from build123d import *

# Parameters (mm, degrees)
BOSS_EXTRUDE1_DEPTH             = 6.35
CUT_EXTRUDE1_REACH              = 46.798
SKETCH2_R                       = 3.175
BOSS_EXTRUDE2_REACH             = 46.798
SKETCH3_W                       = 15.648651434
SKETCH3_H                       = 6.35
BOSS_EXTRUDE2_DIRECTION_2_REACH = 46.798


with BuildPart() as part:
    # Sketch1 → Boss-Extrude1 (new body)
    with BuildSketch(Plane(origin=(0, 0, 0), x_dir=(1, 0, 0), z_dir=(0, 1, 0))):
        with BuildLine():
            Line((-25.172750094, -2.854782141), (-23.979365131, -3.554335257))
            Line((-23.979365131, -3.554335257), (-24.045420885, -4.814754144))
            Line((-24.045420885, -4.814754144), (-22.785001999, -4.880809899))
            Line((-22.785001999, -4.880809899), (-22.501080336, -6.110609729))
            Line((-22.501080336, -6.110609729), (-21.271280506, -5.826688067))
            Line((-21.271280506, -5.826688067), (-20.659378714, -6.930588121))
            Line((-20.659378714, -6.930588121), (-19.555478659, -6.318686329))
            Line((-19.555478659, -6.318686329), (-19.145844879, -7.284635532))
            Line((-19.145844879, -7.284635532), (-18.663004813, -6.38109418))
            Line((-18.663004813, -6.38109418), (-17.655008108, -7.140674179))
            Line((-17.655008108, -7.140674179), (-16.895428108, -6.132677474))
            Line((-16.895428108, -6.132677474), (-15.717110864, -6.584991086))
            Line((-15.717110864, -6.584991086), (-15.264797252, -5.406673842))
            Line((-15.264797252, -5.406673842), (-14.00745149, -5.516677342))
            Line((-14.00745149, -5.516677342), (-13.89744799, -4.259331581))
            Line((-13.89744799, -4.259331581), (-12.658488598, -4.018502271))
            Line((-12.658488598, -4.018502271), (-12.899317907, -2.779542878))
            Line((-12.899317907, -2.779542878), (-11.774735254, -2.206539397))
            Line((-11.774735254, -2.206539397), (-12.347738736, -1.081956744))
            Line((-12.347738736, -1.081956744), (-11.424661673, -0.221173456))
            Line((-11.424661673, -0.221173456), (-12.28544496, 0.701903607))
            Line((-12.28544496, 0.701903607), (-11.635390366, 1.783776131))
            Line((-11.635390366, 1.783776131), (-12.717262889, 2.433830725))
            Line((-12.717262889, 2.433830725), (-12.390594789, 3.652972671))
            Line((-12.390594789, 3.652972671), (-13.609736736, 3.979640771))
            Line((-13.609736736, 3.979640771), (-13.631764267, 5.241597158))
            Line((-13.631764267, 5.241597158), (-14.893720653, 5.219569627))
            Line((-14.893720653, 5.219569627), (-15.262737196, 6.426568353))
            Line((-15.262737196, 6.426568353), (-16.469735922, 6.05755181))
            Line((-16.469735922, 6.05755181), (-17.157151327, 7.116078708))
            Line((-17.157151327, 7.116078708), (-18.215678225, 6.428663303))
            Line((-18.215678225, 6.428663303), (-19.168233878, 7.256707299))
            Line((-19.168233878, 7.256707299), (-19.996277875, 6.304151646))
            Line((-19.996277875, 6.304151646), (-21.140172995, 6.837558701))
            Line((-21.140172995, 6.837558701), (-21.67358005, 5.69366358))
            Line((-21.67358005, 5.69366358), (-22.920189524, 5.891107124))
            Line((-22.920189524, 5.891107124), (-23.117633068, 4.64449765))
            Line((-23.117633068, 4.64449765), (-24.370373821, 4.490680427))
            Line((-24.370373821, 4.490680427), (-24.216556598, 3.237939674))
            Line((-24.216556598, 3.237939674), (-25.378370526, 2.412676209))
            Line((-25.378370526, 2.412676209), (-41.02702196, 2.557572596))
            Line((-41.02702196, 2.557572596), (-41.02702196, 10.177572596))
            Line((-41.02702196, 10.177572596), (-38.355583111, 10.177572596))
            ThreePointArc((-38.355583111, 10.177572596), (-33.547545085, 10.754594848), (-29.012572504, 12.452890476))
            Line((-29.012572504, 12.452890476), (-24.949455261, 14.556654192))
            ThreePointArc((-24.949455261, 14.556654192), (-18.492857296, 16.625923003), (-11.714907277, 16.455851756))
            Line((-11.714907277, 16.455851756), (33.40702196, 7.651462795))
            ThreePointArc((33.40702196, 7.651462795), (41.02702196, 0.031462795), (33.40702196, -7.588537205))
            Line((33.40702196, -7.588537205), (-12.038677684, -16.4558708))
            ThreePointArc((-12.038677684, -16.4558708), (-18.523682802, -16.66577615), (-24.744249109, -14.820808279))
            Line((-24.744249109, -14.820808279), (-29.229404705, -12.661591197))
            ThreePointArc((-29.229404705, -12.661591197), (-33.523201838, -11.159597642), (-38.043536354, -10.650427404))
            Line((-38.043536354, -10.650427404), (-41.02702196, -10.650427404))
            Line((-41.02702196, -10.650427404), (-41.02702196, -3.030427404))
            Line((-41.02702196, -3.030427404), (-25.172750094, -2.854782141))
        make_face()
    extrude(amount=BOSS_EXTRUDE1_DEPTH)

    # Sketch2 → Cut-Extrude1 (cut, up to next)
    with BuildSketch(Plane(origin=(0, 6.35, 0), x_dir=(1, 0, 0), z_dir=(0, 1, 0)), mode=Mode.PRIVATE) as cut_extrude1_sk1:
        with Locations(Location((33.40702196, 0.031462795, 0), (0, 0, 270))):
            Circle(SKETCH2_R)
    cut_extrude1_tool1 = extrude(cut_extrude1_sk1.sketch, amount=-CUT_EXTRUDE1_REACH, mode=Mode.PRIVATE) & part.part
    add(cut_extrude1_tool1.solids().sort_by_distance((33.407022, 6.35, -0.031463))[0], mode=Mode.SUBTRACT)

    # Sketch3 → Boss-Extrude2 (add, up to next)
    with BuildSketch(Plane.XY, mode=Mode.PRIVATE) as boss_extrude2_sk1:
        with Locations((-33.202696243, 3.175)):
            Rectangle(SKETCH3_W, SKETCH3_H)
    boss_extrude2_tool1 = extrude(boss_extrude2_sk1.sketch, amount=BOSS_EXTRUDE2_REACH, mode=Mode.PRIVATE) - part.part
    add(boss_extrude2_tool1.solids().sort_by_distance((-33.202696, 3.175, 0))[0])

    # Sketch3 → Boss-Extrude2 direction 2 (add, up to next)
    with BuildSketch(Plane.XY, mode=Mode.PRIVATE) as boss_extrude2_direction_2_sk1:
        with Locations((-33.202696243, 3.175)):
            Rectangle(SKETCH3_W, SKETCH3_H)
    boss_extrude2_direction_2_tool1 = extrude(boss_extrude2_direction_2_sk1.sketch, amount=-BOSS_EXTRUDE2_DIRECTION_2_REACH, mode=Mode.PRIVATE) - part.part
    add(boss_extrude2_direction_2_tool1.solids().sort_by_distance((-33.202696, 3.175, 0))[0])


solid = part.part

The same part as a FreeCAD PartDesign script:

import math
import FreeCAD as App
import Part
import Sketcher

V = App.Vector
Q = App.Units.Quantity


def add_polygon(sketch, points):
    """Adds a closed chain of lines whose ends are joined by coincident constraints."""
    first, n = sketch.GeometryCount, len(points)
    for a, b in zip(points, points[1:] + points[:1]):
        sketch.addGeometry(Part.LineSegment(App.Vector(*a, 0), App.Vector(*b, 0)), False)
    for i in range(n):
        sketch.addConstraint(Sketcher.Constraint("Coincident", first + i, 2, first + (i + 1) % n, 1))

doc = App.newDocument("Part")
body = doc.addObject("PartDesign::Body", "Body")

# Sketch on XZ plane
sketch1 = body.newObject("Sketcher::SketchObject", "Sketch")
sketch1.AttachmentSupport = (doc.getObject("XZ_Plane"), [""])
sketch1.MapMode = "FlatFace"
sketch1.addGeometry([
    Part.LineSegment(V(-24, 3.6, 0), V(-25.2, 2.9, 0)),  # 0
    Part.LineSegment(V(-25.2, 2.9, 0), V(-41, 3, 0)),  # 1
    Part.LineSegment(V(-41, 3, 0), V(-41, 10.7, 0)),  # 2
    Part.LineSegment(V(-41, 10.7, 0), V(-38, 10.7, 0)),  # 3
    Part.ArcOfCircle(Part.Circle(V(-38, 31, 0), V(0, 0, 1), 20.3), math.radians(-90), math.radians(-64)),  # 4
    Part.LineSegment(V(-29.2, 12.7, 0), V(-24.7, 14.8, 0)),  # 5
    Part.ArcOfCircle(Part.Circle(V(-15.9, -3.5, 0), V(0, 0, 1), 20.3), math.radians(79), math.radians(116)),  # 6
    Part.LineSegment(V(-12, 16.5, 0), V(33.4, 7.6, 0)),  # 7
    Part.ArcOfCircle(Part.Circle(V(33.4, 0, 0), V(0, 0, 1), 7.6), math.radians(-90), math.radians(90)),  # 8
    Part.LineSegment(V(33.4, -7.7, 0), V(-11.7, -16.5, 0)),  # 9
    Part.ArcOfCircle(Part.Circle(V(-15.6, 3.5, 0), V(0, 0, 1), 20.3), math.radians(-117), math.radians(-79)),  # 10
    Part.LineSegment(V(-24.9, -14.6, 0), V(-29, -12.5, 0)),  # 11
    Part.ArcOfCircle(Part.Circle(V(-38.4, -30.5, 0), V(0, 0, 1), 20.3), math.radians(63), math.radians(90)),  # 12
    Part.LineSegment(V(-38.4, -10.2, 0), V(-41, -10.2, 0)),  # 13
    Part.LineSegment(V(-41, -10.2, 0), V(-41, -2.6, 0)),  # 14
    Part.LineSegment(V(-41, -2.6, 0), V(-25.4, -2.4, 0)),  # 15
    Part.LineSegment(V(-25.4, -2.4, 0), V(-24.2, -3.2, 0)),  # 16
    Part.LineSegment(V(-24.2, -3.2, 0), V(-24.4, -4.5, 0)),  # 17
    Part.LineSegment(V(-24.4, -4.5, 0), V(-23.1, -4.6, 0)),  # 18
    Part.LineSegment(V(-23.1, -4.6, 0), V(-22.9, -5.9, 0)),  # 19
    Part.LineSegment(V(-22.9, -5.9, 0), V(-21.7, -5.7, 0)),  # 20
    Part.LineSegment(V(-21.7, -5.7, 0), V(-21.1, -6.8, 0)),  # 21
    Part.LineSegment(V(-21.1, -6.8, 0), V(-20, -6.3, 0)),  # 22
    Part.LineSegment(V(-20, -6.3, 0), V(-19.2, -7.3, 0)),  # 23
    Part.LineSegment(V(-19.2, -7.3, 0), V(-18.2, -6.4, 0)),  # 24
    Part.LineSegment(V(-18.2, -6.4, 0), V(-17.2, -7.1, 0)),  # 25
    Part.LineSegment(V(-17.2, -7.1, 0), V(-16.5, -6.1, 0)),  # 26
    Part.LineSegment(V(-16.5, -6.1, 0), V(-15.3, -6.4, 0)),  # 27
    Part.LineSegment(V(-15.3, -6.4, 0), V(-14.9, -5.2, 0)),  # 28
    Part.LineSegment(V(-14.9, -5.2, 0), V(-13.6, -5.2, 0)),  # 29
    Part.LineSegment(V(-13.6, -5.2, 0), V(-13.6, -4, 0)),  # 30
    Part.LineSegment(V(-13.6, -4, 0), V(-12.4, -3.7, 0)),  # 31
    Part.LineSegment(V(-12.4, -3.7, 0), V(-12.7, -2.4, 0)),  # 32
    Part.LineSegment(V(-12.7, -2.4, 0), V(-11.6, -1.8, 0)),  # 33
    Part.LineSegment(V(-11.6, -1.8, 0), V(-12.3, -0.7, 0)),  # 34
    Part.LineSegment(V(-12.3, -0.7, 0), V(-11.4, 0.2, 0)),  # 35
    Part.LineSegment(V(-11.4, 0.2, 0), V(-12.3, 1.1, 0)),  # 36
    Part.LineSegment(V(-12.3, 1.1, 0), V(-11.8, 2.2, 0)),  # 37
    Part.LineSegment(V(-11.8, 2.2, 0), V(-12.9, 2.8, 0)),  # 38
    Part.LineSegment(V(-12.9, 2.8, 0), V(-12.7, 4, 0)),  # 39
    Part.LineSegment(V(-12.7, 4, 0), V(-13.9, 4.3, 0)),  # 40
    Part.LineSegment(V(-13.9, 4.3, 0), V(-14, 5.5, 0)),  # 41
    Part.LineSegment(V(-14, 5.5, 0), V(-15.3, 5.4, 0)),  # 42
    Part.LineSegment(V(-15.3, 5.4, 0), V(-15.7, 6.6, 0)),  # 43
    Part.LineSegment(V(-15.7, 6.6, 0), V(-16.9, 6.1, 0)),  # 44
    Part.LineSegment(V(-16.9, 6.1, 0), V(-17.7, 7.1, 0)),  # 45
    Part.LineSegment(V(-17.7, 7.1, 0), V(-18.7, 6.4, 0)),  # 46
    Part.LineSegment(V(-18.7, 6.4, 0), V(-19.1, 7.3, 0)),  # 47
    Part.LineSegment(V(-19.1, 7.3, 0), V(-19.6, 6.3, 0)),  # 48
    Part.LineSegment(V(-19.6, 6.3, 0), V(-20.7, 6.9, 0)),  # 49
    Part.LineSegment(V(-20.7, 6.9, 0), V(-21.3, 5.8, 0)),  # 50
    Part.LineSegment(V(-21.3, 5.8, 0), V(-22.5, 6.1, 0)),  # 51
    Part.LineSegment(V(-22.5, 6.1, 0), V(-22.8, 4.9, 0)),  # 52
    Part.LineSegment(V(-22.8, 4.9, 0), V(-24, 4.8, 0)),  # 53
    Part.LineSegment(V(-24, 4.8, 0), V(-24, 3.6, 0)),  # 54
], False)
sketch1.addConstraint([
    Sketcher.Constraint("Coincident", 0, 2, 1, 1),
    Sketcher.Constraint("Coincident", 1, 2, 2, 1),
    Sketcher.Constraint("Coincident", 2, 2, 3, 1),
    Sketcher.Constraint("Tangent", 3, 2, 4, 1),
    Sketcher.Constraint("Tangent", 4, 2, 5, 1),
    Sketcher.Constraint("Tangent", 5, 2, 6, 2),
    Sketcher.Constraint("Tangent", 6, 1, 7, 1),
    Sketcher.Constraint("Coincident", 7, 2, 8, 2),
    Sketcher.Constraint("Coincident", 8, 1, 9, 1),
    Sketcher.Constraint("Tangent", 9, 2, 10, 2),
    Sketcher.Constraint("Tangent", 10, 1, 11, 1),
    Sketcher.Constraint("Tangent", 11, 2, 12, 1),
    Sketcher.Constraint("Tangent", 12, 2, 13, 1),
    Sketcher.Constraint("Coincident", 13, 2, 14, 1),
    Sketcher.Constraint("Coincident", 14, 2, 15, 1),
    Sketcher.Constraint("Coincident", 15, 2, 16, 1),
    Sketcher.Constraint("Coincident", 16, 2, 17, 1),
    Sketcher.Constraint("Coincident", 17, 2, 18, 1),
    Sketcher.Constraint("Coincident", 18, 2, 19, 1),
    Sketcher.Constraint("Coincident", 19, 2, 20, 1),
    Sketcher.Constraint("Coincident", 20, 2, 21, 1),
    Sketcher.Constraint("Coincident", 21, 2, 22, 1),
    Sketcher.Constraint("Coincident", 22, 2, 23, 1),
    Sketcher.Constraint("Coincident", 23, 2, 24, 1),
    Sketcher.Constraint("Coincident", 24, 2, 25, 1),
    Sketcher.Constraint("Coincident", 25, 2, 26, 1),
    Sketcher.Constraint("Coincident", 26, 2, 27, 1),
    Sketcher.Constraint("Coincident", 27, 2, 28, 1),
    Sketcher.Constraint("Coincident", 28, 2, 29, 1),
    Sketcher.Constraint("Coincident", 29, 2, 30, 1),
    Sketcher.Constraint("Coincident", 30, 2, 31, 1),
    Sketcher.Constraint("Coincident", 31, 2, 32, 1),
    Sketcher.Constraint("Coincident", 32, 2, 33, 1),
    Sketcher.Constraint("Coincident", 33, 2, 34, 1),
    Sketcher.Constraint("Coincident", 34, 2, 35, 1),
    Sketcher.Constraint("Coincident", 35, 2, 36, 1),
    Sketcher.Constraint("Coincident", 36, 2, 37, 1),
    Sketcher.Constraint("Coincident", 37, 2, 38, 1),
    Sketcher.Constraint("Coincident", 38, 2, 39, 1),
    Sketcher.Constraint("Coincident", 39, 2, 40, 1),
    Sketcher.Constraint("Coincident", 40, 2, 41, 1),
    Sketcher.Constraint("Coincident", 41, 2, 42, 1),
    Sketcher.Constraint("Coincident", 42, 2, 43, 1),
    Sketcher.Constraint("Coincident", 43, 2, 44, 1),
    Sketcher.Constraint("Coincident", 44, 2, 45, 1),
    Sketcher.Constraint("Coincident", 45, 2, 46, 1),
    Sketcher.Constraint("Coincident", 46, 2, 47, 1),
    Sketcher.Constraint("Coincident", 47, 2, 48, 1),
    Sketcher.Constraint("Coincident", 48, 2, 49, 1),
    Sketcher.Constraint("Coincident", 49, 2, 50, 1),
    Sketcher.Constraint("Coincident", 50, 2, 51, 1),
    Sketcher.Constraint("Coincident", 51, 2, 52, 1),
    Sketcher.Constraint("Coincident", 52, 2, 53, 1),
    Sketcher.Constraint("Coincident", 53, 2, 54, 1),
    Sketcher.Constraint("Coincident", 54, 2, 0, 1),
    Sketcher.Constraint("Vertical", 2),
    Sketcher.Constraint("Horizontal", 3),
    Sketcher.Constraint("Horizontal", 13),
    Sketcher.Constraint("Vertical", 14),
    Sketcher.Constraint("Equal", 4, 6),
    Sketcher.Constraint("Equal", 6, 10),
    Sketcher.Constraint("Equal", 10, 12),
    Sketcher.Constraint("Perpendicular", 17, 18),
    Sketcher.Constraint("Perpendicular", 19, 20),
    Sketcher.Constraint("Perpendicular", 21, 22),
    Sketcher.Constraint("Perpendicular", 23, 24),
    Sketcher.Constraint("Perpendicular", 25, 26),
    Sketcher.Constraint("Perpendicular", 27, 28),
    Sketcher.Constraint("Perpendicular", 29, 30),
    Sketcher.Constraint("Perpendicular", 31, 32),
    Sketcher.Constraint("Perpendicular", 33, 34),
    Sketcher.Constraint("Perpendicular", 35, 36),
    Sketcher.Constraint("Perpendicular", 37, 38),
    Sketcher.Constraint("Perpendicular", 39, 40),
    Sketcher.Constraint("Perpendicular", 41, 42),
    Sketcher.Constraint("Perpendicular", 43, 44),
    Sketcher.Constraint("Perpendicular", 45, 46),
    Sketcher.Constraint("Perpendicular", 49, 50),
    Sketcher.Constraint("Perpendicular", 51, 52),
    Sketcher.Constraint("Perpendicular", 53, 54),
    Sketcher.Constraint("Vertical", 8, 3, 7, 2),
    Sketcher.Constraint("Vertical", 7, 2, 8, 1),
    Sketcher.Constraint("Vertical", 2, 2, 13, 2),
    Sketcher.Constraint("Equal", 2, 14),
    Sketcher.Constraint("Equal", 17, 18),
    Sketcher.Constraint("Equal", 18, 19),
    Sketcher.Constraint("Equal", 19, 20),
    Sketcher.Constraint("Equal", 20, 21),
    Sketcher.Constraint("Equal", 21, 22),
    Sketcher.Constraint("Equal", 22, 23),
    Sketcher.Constraint("Equal", 23, 24),
    Sketcher.Constraint("Equal", 24, 25),
    Sketcher.Constraint("Equal", 25, 26),
    Sketcher.Constraint("Equal", 26, 27),
    Sketcher.Constraint("Equal", 27, 28),
    Sketcher.Constraint("Equal", 28, 29),
    Sketcher.Constraint("Equal", 29, 30),
    Sketcher.Constraint("Equal", 30, 31),
    Sketcher.Constraint("Equal", 31, 32),
    Sketcher.Constraint("Equal", 32, 33),
    Sketcher.Constraint("Equal", 33, 34),
    Sketcher.Constraint("Equal", 34, 35),
    Sketcher.Constraint("Equal", 35, 36),
    Sketcher.Constraint("Equal", 36, 37),
    Sketcher.Constraint("Equal", 37, 38),
    Sketcher.Constraint("Equal", 38, 39),
    Sketcher.Constraint("Equal", 39, 40),
    Sketcher.Constraint("Equal", 40, 41),
    Sketcher.Constraint("Equal", 41, 42),
    Sketcher.Constraint("Equal", 42, 43),
    Sketcher.Constraint("Equal", 43, 44),
    Sketcher.Constraint("Equal", 44, 45),
    Sketcher.Constraint("Equal", 45, 46),
    Sketcher.Constraint("Equal", 46, 49),
    Sketcher.Constraint("Equal", 49, 50),
    Sketcher.Constraint("Equal", 50, 51),
    Sketcher.Constraint("Equal", 51, 52),
    Sketcher.Constraint("Equal", 52, 53),
    Sketcher.Constraint("Equal", 53, 54),
    Sketcher.Constraint("Radius", 4, Q("0.8 in")),
    Sketcher.Constraint("Radius", 8, Q("0.3 in")),
    Sketcher.Constraint("DistanceY", 2, 1, 2, 2, Q("0.3 in")),
    Sketcher.Constraint("Angle", 17, Q("-97 deg")),
    Sketcher.Constraint("Angle", 19, Q("-81 deg")),
    Sketcher.Constraint("Angle", 21, Q("-65 deg")),
    Sketcher.Constraint("Angle", 23, Q("-49 deg")),
    Sketcher.Constraint("Angle", 25, Q("-33 deg")),
    Sketcher.Constraint("Angle", 27, Q("-17 deg")),
    Sketcher.Constraint("Angle", 29, Q("-1 deg")),
    Sketcher.Constraint("Angle", 31, Q("15 deg")),
    Sketcher.Constraint("Angle", 33, Q("31 deg")),
    Sketcher.Constraint("Angle", 35, Q("47 deg")),
    Sketcher.Constraint("Angle", 37, Q("63 deg")),
    Sketcher.Constraint("Angle", 39, Q("79 deg")),
    Sketcher.Constraint("Angle", 41, Q("95 deg")),
    Sketcher.Constraint("Angle", 43, Q("111 deg")),
    Sketcher.Constraint("Angle", 45, Q("127 deg")),
    Sketcher.Constraint("Angle", 49, Q("151 deg")),
    Sketcher.Constraint("Angle", 51, Q("167 deg")),
    Sketcher.Constraint("Angle", 53, Q("-177 deg")),
    Sketcher.Constraint("DistanceY", 12, 3, 4, 3, Q("2.42 in")),
    Sketcher.Constraint("DistanceX", 22, 2, 23, 2, Q("0.0326002 in")),
    Sketcher.Constraint("DistanceX", 13, 2, 13, 1, 2.671439),
    Sketcher.Constraint("DistanceX", 52, 2, -1, 1, 22.785002),
    Sketcher.Constraint("DistanceY", 10, 3, 4, 3, 27.482399),
    Sketcher.Constraint("DistanceX", 0, 2, 5, 2, 0.428501),
    Sketcher.Constraint("DistanceY", 6, 3, 6, 1, 19.943899),
    Sketcher.Constraint("DistanceX", 6, 1, 7, 2, 45.4457),
    Sketcher.Constraint("DistanceX", 11, 2, 15, 2, 3.634202),
    Sketcher.Constraint("DistanceX", 11, 2, 17, 2, 4.642199),
    Sketcher.Constraint("Distance", 0, 1.383308),
    Sketcher.Constraint("Distance", 9, 45.972881),
    Sketcher.Constraint("Distance", 11, 4.57545),
    Sketcher.Constraint("Distance", 47, 1.024462),
    Sketcher.Constraint("DistanceX", 3, 1, 3, 2, 2.983486),
    Sketcher.Constraint("DistanceX", -1, 1, 8, 3, 33.407022),
    Sketcher.Constraint("DistanceX", 0, 2, -1, 1, 25.17275),
    Sketcher.Constraint("DistanceY", -1, 1, 4, 2, 12.661591),
    Sketcher.Constraint("DistanceY", 16, 2, -1, 1, 3.23794),
    Sketcher.Constraint("DistanceY", -1, 1, 49, 2, 6.930588),
    Sketcher.Constraint("DistanceY", 15, 2, 0, 2, 5.267458),
    Sketcher.Constraint("DistanceX", 47, 2, 46, 2, 0.48284),
])
pad1 = body.newObject("PartDesign::Pad", "Pad")
pad1.Profile = sketch1
pad1.Length = Q("0.25 in")
pad1.Reversed = True

# Sketch on XZ plane
sketch2 = body.newObject("Sketcher::SketchObject", "Sketch001")
sketch2.AttachmentSupport = (doc.getObject("XZ_Plane"), [""])
sketch2.MapMode = "FlatFace"
sketch2.AttachmentOffset = App.Placement(V(0, 0, -0.25 * 25.4), App.Rotation())
sketch2.addGeometry(Part.Circle(V(33.4, 0, 0), V(0, 0, 1), 3.2), False)
sketch2.addConstraint([
    Sketcher.Constraint("Diameter", 0, Q("0.25 in")),
    Sketcher.Constraint("DistanceX", -1, 1, 0, 3, 33.407022),
    Sketcher.Constraint("DistanceY", 0, 3, -1, 1, 0.031463),
])
pocket1 = body.newObject("PartDesign::Pocket", "Pocket")
pocket1.Profile = sketch2
pocket1.Type = "UpToFirst"
pocket1.Reversed = True

# Sketch on XY plane
sketch3 = body.newObject("Sketcher::SketchObject", "Sketch002")
sketch3.AttachmentSupport = (doc.getObject("XY_Plane"), [""])
sketch3.MapMode = "FlatFace"
add_polygon(sketch3, [(-41, 6), (-41, 0), (-25, 0), (-25, 6)])  # lines 0-3
sketch3.addConstraint([
    Sketcher.Constraint("Vertical", 0),
    Sketcher.Constraint("Horizontal", 1),
    Sketcher.Constraint("Vertical", 2),
    Sketcher.Constraint("Horizontal", 3),
    Sketcher.Constraint("PointOnObject", 0, 2, -1),
    Sketcher.Constraint("DistanceY", 0, 2, 0, 1, Q("0.25 in")),
    Sketcher.Constraint("DistanceX", 1, 1, 1, 2, 15.648651),
    Sketcher.Constraint("DistanceX", 0, 2, -1, 1, 41.027022),
])
pad2 = body.newObject("PartDesign::Pad", "Pad001")
pad2.Profile = sketch3
pad2.Type = "UpToFirst"

# Sketch on XY plane
sketch4 = body.newObject("Sketcher::SketchObject", "Sketch003")
sketch4.AttachmentSupport = (doc.getObject("XY_Plane"), [""])
sketch4.MapMode = "FlatFace"
add_polygon(sketch4, [(-41, 6), (-41, 0), (-25, 0), (-25, 6)])  # lines 0-3
sketch4.addConstraint([
    Sketcher.Constraint("Vertical", 0),
    Sketcher.Constraint("Horizontal", 1),
    Sketcher.Constraint("Vertical", 2),
    Sketcher.Constraint("Horizontal", 3),
    Sketcher.Constraint("PointOnObject", 0, 2, -1),
    Sketcher.Constraint("DistanceY", 0, 2, 0, 1, Q("0.25 in")),
    Sketcher.Constraint("DistanceX", 1, 1, 1, 2, 15.648651),
    Sketcher.Constraint("DistanceX", 0, 2, -1, 1, 41.027022),
])
pad3 = body.newObject("PartDesign::Pad", "Pad002")
pad3.Profile = sketch4
pad3.Type = "UpToFirst"
pad3.Reversed = True

doc.recompute()
